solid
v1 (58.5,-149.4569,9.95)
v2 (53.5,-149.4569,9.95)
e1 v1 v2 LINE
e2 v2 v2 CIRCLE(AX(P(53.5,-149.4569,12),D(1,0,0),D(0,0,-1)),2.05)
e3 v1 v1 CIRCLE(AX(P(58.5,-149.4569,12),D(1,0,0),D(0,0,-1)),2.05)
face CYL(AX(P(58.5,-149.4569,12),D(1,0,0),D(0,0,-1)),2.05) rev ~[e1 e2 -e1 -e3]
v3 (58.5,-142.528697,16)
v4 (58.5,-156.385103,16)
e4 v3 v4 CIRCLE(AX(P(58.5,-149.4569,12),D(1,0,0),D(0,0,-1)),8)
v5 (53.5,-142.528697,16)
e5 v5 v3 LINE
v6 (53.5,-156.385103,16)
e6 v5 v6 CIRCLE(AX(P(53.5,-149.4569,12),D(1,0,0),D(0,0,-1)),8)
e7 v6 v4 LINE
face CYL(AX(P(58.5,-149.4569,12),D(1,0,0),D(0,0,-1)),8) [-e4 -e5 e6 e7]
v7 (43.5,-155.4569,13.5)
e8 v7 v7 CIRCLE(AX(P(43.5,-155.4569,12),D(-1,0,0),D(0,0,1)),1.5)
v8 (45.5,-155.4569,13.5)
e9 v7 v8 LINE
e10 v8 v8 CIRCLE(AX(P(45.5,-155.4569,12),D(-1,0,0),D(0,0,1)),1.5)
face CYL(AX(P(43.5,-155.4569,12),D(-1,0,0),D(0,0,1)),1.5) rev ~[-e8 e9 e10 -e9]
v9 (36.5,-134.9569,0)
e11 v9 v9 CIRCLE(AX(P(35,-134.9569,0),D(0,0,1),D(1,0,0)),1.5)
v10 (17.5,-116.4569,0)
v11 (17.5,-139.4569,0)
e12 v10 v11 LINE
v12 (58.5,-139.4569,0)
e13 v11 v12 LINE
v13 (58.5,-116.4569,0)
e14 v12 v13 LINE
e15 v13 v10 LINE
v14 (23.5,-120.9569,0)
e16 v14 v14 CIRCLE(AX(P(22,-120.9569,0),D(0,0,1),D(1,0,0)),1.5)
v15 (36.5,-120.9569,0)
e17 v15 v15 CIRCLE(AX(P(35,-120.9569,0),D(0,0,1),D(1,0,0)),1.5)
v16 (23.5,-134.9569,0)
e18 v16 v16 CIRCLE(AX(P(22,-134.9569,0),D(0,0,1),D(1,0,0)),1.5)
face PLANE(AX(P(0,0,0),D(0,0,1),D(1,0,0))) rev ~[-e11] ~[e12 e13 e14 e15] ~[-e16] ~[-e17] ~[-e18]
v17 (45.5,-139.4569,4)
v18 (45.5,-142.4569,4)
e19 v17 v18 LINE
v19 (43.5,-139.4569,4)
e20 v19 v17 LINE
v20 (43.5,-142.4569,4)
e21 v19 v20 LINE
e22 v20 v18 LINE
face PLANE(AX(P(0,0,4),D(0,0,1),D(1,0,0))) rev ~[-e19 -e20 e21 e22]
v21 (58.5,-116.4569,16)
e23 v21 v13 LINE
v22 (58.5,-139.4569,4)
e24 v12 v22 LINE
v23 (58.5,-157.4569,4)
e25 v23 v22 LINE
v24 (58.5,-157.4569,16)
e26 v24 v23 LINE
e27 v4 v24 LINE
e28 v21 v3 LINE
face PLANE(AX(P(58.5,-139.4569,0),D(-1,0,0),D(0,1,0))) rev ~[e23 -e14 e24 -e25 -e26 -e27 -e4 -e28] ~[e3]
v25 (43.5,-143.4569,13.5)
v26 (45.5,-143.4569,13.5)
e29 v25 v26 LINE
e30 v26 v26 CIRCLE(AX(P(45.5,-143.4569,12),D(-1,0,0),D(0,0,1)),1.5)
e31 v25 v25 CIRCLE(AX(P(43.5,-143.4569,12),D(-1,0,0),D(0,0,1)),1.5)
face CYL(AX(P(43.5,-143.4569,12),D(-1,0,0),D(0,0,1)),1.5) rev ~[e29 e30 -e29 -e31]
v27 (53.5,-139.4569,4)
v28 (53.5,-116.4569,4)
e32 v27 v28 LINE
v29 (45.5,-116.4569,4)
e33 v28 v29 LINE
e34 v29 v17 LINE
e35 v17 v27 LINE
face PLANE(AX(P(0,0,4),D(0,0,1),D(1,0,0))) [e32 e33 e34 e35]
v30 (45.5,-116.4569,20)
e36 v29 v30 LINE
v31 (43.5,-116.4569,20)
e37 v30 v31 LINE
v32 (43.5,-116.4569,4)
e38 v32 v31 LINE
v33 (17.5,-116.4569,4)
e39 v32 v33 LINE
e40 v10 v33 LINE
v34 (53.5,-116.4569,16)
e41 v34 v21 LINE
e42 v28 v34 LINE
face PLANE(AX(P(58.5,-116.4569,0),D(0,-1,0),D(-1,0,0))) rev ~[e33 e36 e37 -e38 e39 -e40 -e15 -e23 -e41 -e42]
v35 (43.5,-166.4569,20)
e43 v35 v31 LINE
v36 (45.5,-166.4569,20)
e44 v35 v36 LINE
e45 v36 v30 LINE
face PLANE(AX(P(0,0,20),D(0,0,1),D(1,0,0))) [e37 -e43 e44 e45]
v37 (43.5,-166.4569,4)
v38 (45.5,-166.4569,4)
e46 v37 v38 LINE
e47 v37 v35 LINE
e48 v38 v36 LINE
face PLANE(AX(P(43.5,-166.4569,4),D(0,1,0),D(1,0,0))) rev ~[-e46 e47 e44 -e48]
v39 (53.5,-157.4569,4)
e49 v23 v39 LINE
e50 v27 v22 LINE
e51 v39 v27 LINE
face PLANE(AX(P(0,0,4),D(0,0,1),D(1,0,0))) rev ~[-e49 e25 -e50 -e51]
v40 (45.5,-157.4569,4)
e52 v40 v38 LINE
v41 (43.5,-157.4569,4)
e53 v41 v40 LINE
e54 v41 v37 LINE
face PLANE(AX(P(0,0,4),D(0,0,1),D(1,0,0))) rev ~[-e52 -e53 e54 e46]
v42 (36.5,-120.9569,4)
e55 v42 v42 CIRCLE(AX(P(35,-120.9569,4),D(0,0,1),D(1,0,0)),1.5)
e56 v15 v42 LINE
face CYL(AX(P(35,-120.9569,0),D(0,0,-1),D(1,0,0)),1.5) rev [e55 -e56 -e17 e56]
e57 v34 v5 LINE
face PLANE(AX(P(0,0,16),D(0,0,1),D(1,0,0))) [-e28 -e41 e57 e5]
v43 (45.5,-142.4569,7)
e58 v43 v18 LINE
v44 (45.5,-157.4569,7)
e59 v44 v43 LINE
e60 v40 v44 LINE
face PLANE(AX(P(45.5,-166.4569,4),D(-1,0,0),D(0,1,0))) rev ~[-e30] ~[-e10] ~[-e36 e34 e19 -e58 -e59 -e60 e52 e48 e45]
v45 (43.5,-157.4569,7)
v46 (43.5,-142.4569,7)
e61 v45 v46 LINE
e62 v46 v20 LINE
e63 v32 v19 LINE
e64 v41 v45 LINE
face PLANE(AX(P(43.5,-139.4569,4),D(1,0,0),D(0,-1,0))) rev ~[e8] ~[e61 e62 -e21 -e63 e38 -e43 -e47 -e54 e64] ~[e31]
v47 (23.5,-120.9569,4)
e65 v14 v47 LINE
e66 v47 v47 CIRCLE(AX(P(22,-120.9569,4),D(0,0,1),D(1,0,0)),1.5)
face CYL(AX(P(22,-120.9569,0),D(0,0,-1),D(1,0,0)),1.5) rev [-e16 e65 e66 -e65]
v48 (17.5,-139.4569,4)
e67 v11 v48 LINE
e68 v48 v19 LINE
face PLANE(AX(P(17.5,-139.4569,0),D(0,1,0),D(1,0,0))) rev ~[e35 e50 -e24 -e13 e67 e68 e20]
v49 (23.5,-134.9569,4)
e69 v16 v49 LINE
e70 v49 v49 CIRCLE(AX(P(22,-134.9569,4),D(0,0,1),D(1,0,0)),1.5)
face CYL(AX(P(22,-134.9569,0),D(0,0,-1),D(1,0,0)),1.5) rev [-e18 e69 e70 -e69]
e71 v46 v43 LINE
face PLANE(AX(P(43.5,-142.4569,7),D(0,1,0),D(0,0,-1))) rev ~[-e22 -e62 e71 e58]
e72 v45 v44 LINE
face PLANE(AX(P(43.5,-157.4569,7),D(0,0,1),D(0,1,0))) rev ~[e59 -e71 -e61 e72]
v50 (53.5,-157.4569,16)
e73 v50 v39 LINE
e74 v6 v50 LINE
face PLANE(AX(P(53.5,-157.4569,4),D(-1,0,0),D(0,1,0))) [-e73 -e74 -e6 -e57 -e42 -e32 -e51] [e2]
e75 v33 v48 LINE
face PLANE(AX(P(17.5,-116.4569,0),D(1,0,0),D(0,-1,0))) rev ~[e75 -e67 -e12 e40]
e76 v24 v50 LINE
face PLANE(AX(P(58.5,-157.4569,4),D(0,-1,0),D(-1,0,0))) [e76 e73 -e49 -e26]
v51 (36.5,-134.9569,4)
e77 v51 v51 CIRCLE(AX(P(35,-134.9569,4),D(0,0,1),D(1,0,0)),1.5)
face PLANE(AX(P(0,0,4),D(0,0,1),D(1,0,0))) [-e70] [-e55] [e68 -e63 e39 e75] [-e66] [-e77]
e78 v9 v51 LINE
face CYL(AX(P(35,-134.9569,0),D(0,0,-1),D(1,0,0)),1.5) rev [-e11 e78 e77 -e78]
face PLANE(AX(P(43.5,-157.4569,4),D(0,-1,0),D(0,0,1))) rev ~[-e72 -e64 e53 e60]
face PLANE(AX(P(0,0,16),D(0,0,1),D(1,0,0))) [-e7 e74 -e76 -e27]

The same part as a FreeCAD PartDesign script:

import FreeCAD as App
import Part
import Sketcher

V = App.Vector

doc = App.newDocument("Part")
params = doc.addObject("Spreadsheet::Sheet", "Params")
for row, (alias, value) in enumerate([
    ("sketch1_diameter", "3 mm"),
    ("sketch1_width", "41 mm"),
    ("sketch1_height", "23 mm"),
    ("pad1_length", "4 mm"),
    ("sketch2_width", "5 mm"),
    ("sketch2_height", "41 mm"),
    ("pad2_length", "12 mm"),
    ("sketch3_diameter", "3.1 mm"),
    ("sketch4_width", "2 mm"),
    ("sketch4_height", "50 mm"),
    ("pad3_length", "16 mm"),
    ("sketch5_diameter", "4.1 mm"),
    ("pocket2_length", "5 mm"),
    ("sketch6_diameter", "4.1 mm"),
    ("sketch6_diameter2", "16 mm"),
    ("pad4_length", "5 mm"),
    ("sketch7_diameter", "3 mm"),
    ("sketch7_width", "15 mm"),
    ("sketch7_height", "3 mm"),
    ("pocket3_length", "10 mm"),
], start=1):
    params.set(f"A{row}", alias)
    params.set(f"B{row}", "=" + value)
    params.setAlias(f"B{row}", alias)

body = doc.addObject("PartDesign::Body", "Body")

# Sketch on XY plane
sketch1 = body.newObject("Sketcher::SketchObject", "Sketch")
sketch1.AttachmentSupport = (doc.getObject("XY_Plane"), [""])
sketch1.MapMode = "FlatFace"
sketch1.addGeometry([
    Part.LineSegment(V(17.5, -116.5, 0), V(17.5, -139.5, 0)),  # 0
    Part.LineSegment(V(17.5, -139.5, 0), V(58.5, -139.5, 0)),  # 1
    Part.LineSegment(V(58.5, -139.5, 0), V(58.5, -116.5, 0)),  # 2
    Part.LineSegment(V(58.5, -116.5, 0), V(17.5, -116.5, 0)),  # 3
    Part.Circle(V(22, -135, 0), V(0, 0, 1), 1.5),  # 4
    Part.Circle(V(22, -121, 0), V(0, 0, 1), 1.5),  # 5
    Part.Circle(V(35, -135, 0), V(0, 0, 1), 1.5),  # 6
    Part.Circle(V(35, -121, 0), V(0, 0, 1), 1.5),  # 7
], False)
sketch1.addConstraint([
    Sketcher.Constraint("Coincident", 0, 2, 1, 1),
    Sketcher.Constraint("Coincident", 1, 2, 2, 1),
    Sketcher.Constraint("Coincident", 2, 2, 3, 1),
    Sketcher.Constraint("Coincident", 3, 2, 0, 1),
    Sketcher.Constraint("Vertical", 0),
    Sketcher.Constraint("Horizontal", 1),
    Sketcher.Constraint("Vertical", 2),
    Sketcher.Constraint("Horizontal", 3),
    Sketcher.Constraint("Equal", 4, 5),
    Sketcher.Constraint("Equal", 5, 6),
    Sketcher.Constraint("Equal", 6, 7),
    Sketcher.Constraint("Horizontal", 4, 3, 6, 3),
    Sketcher.Constraint("Horizontal", 5, 3, 7, 3),
    Sketcher.Constraint("Vertical", 4, 3, 5, 3),
    Sketcher.Constraint("Vertical", 6, 3, 7, 3),
    Sketcher.Constraint("Diameter", 4, 3.0),
    Sketcher.Constraint("DistanceX", 1, 1, 1, 2, 41.0),
    Sketcher.Constraint("DistanceY", 0, 2, 0, 1, 23.0),
    Sketcher.Constraint("DistanceY", 4, 3, 5, 3, 14.0),
    Sketcher.Constraint("DistanceX", 4, 3, 6, 3, 13.0),
    Sketcher.Constraint("DistanceX", 0, 2, 4, 3, 4.5),
    Sketcher.Constraint("DistanceY", 0, 2, 4, 3, 4.5),
    Sketcher.Constraint("DistanceX", -1, 1, 4, 3, 22.0),
    Sketcher.Constraint("DistanceY", 4, 3, -1, 1, 134.957),
])
sketch1.setExpression("Constraints[15]", "Params.sketch1_diameter")
sketch1.setExpression("Constraints[16]", "Params.sketch1_width")
sketch1.setExpression("Constraints[17]", "Params.sketch1_height")
pad1 = body.newObject("PartDesign::Pad", "Pad")
pad1.Profile = sketch1
pad1.setExpression("Length", "Params.pad1_length")

# Sketch on XY plane
sketch2 = body.newObject("Sketcher::SketchObject", "Sketch001")
sketch2.AttachmentSupport = (doc.getObject("XY_Plane"), [""])
sketch2.MapMode = "FlatFace"
sketch2.AttachmentOffset = App.Placement(V(0, 0, 4), App.Rotation())
sketch2.addGeometry([
    Part.LineSegment(V(58, -157, 0), V(58, -116, 0)),
    Part.LineSegment(V(58, -116, 0), V(54, -116, 0)),
    Part.LineSegment(V(54, -116, 0), V(54, -157, 0)),
    Part.LineSegment(V(54, -157, 0), V(58, -157, 0)),
], False)
sketch2.addConstraint([
    Sketcher.Constraint("Coincident", 0, 2, 1, 1),
    Sketcher.Constraint("Coincident", 1, 2, 2, 1),
    Sketcher.Constraint("Coincident", 2, 2, 3, 1),
    Sketcher.Constraint("Coincident", 3, 2, 0, 1),
    Sketcher.Constraint("Vertical", 0),
    Sketcher.Constraint("Horizontal", 1),
    Sketcher.Constraint("Vertical", 2),
    Sketcher.Constraint("Horizontal", 3),
    Sketcher.Constraint("DistanceX", 1, 2, 1, 1, 5.0),
    Sketcher.Constraint("DistanceY", 0, 1, 0, 2, 41.0),
    Sketcher.Constraint("DistanceX", -1, 1, 0, 2, 58.5),
    Sketcher.Constraint("DistanceY", 0, 2, -1, 1, 116.457),
])
sketch2.setExpression("Constraints[8]", "Params.sketch2_width")
sketch2.setExpression("Constraints[9]", "Params.sketch2_height")
pad2 = body.newObject("PartDesign::Pad", "Pad001")
pad2.Profile = sketch2
pad2.setExpression("Length", "Params.pad2_length")

# Sketch on YZ plane
sketch3 = body.newObject("Sketcher::SketchObject", "Sketch002")
sketch3.AttachmentSupport = (doc.getObject("YZ_Plane"), [""])
sketch3.MapMode = "FlatFace"
sketch3.AttachmentOffset = App.Placement(V(0, 0, 53.5), App.Rotation())
sketch3.addGeometry(Part.Circle(V(-149.5, 12, 0), V(0, 0, 1), 1.6), False)
sketch3.addConstraint([
    Sketcher.Constraint("Diameter", 0, 3.1),
    Sketcher.Constraint("DistanceY", -1, 1, 0, 3, 12.0),
    Sketcher.Constraint("DistanceX", 0, 3, -1, 1, 149.457),
])
sketch3.setExpression("Constraints[0]", "Params.sketch3_diameter")
pocket1 = body.newObject("PartDesign::Pocket", "Pocket")
pocket1.Profile = sketch3
pocket1.Type = "ThroughAll"
pocket1.Reversed = True

# Sketch on XY plane
sketch4 = body.newObject("Sketcher::SketchObject", "Sketch003")
sketch4.AttachmentSupport = (doc.getObject("XY_Plane"), [""])
sketch4.MapMode = "FlatFace"
sketch4.AttachmentOffset = App.Placement(V(0, 0, 4), App.Rotation())
sketch4.addGeometry([
    Part.LineSegment(V(43.5, -166.5, 0), V(45.5, -166.5, 0)),
    Part.LineSegment(V(45.5, -166.5, 0), V(45.5, -116.5, 0)),
    Part.LineSegment(V(45.5, -116.5, 0), V(43.5, -116.5, 0)),
    Part.LineSegment(V(43.5, -116.5, 0), V(43.5, -166.5, 0)),
], False)
sketch4.addConstraint([
    Sketcher.Constraint("Coincident", 0, 2, 1, 1),
    Sketcher.Constraint("Coincident", 1, 2, 2, 1),
    Sketcher.Constraint("Coincident", 2, 2, 3, 1),
    Sketcher.Constraint("Coincident", 3, 2, 0, 1),
    Sketcher.Constraint("Horizontal", 0),
    Sketcher.Constraint("Vertical", 1),
    Sketcher.Constraint("Horizontal", 2),
    Sketcher.Constraint("Vertical", 3),
    Sketcher.Constraint("DistanceX", 0, 1, 0, 2, 2.0),
    Sketcher.Constraint("DistanceY", 1, 1, 1, 2, 50.0),
    Sketcher.Constraint("DistanceX", -1, 1, 0, 2, 45.5),
    Sketcher.Constraint("DistanceY", 0, 2, -1, 1, 166.457),
])
sketch4.setExpression("Constraints[8]", "Params.sketch4_width")
sketch4.setExpression("Constraints[9]", "Params.sketch4_height")
pad3 = body.newObject("PartDesign::Pad", "Pad002")
pad3.Profile = sketch4
pad3.setExpression("Length", "Params.pad3_length")

# Sketch on YZ plane
sketch5 = body.newObject("Sketcher::SketchObject", "Sketch004")
sketch5.AttachmentSupport = (doc.getObject("YZ_Plane"), [""])
sketch5.MapMode = "FlatFace"
sketch5.AttachmentOffset = App.Placement(V(0, 0, 58.5), App.Rotation())
sketch5.addGeometry(Part.Circle(V(-149.5, 12, 0), V(0, 0, 1), 2), False)
sketch5.addConstraint([
    Sketcher.Constraint("Diameter", 0, 4.1),
    Sketcher.Constraint("DistanceY", -1, 1, 0, 3, 12.0),
    Sketcher.Constraint("DistanceX", 0, 3, -1, 1, 149.457),
])
sketch5.setExpression("Constraints[0]", "Params.sketch5_diameter")
pocket2 = body.newObject("PartDesign::Pocket", "Pocket001")
pocket2.Profile = sketch5
pocket2.setExpression("Length", "Params.pocket2_length")

# Sketch on YZ plane
sketch6 = body.newObject("Sketcher::SketchObject", "Sketch005")
sketch6.AttachmentSupport = (doc.getObject("YZ_Plane"), [""])
sketch6.MapMode = "FlatFace"
sketch6.AttachmentOffset = App.Placement(V(0, 0, 58.5), App.Rotation())
sketch6.addGeometry([
    Part.Circle(V(-149.5, 12, 0), V(0, 0, 1), 8),
    Part.Circle(V(-149.5, 12, 0), V(0, 0, 1), 2),
], False)
sketch6.addConstraint([
    Sketcher.Constraint("Coincident", 1, 3, 0, 3),
    Sketcher.Constraint("Diameter", 1, 4.1),
    Sketcher.Constraint("Diameter", 0, 16.0),
    Sketcher.Constraint("DistanceY", -1, 1, 0, 3, 12.0),
    Sketcher.Constraint("DistanceX", 0, 3, -1, 1, 149.457),
])
sketch6.setExpression("Constraints[1]", "Params.sketch6_diameter")
sketch6.setExpression("Constraints[2]", "Params.sketch6_diameter2")
pad4 = body.newObject("PartDesign::Pad", "Pad003")
pad4.Profile = sketch6
pad4.setExpression("Length", "Params.pad4_length")
pad4.Reversed = True

# Sketch on YZ plane
sketch7 = body.newObject("Sketcher::SketchObject", "Sketch006")
sketch7.AttachmentSupport = (doc.getObject("YZ_Plane"), [""])
sketch7.MapMode = "FlatFace"
sketch7.AttachmentOffset = App.Placement(V(0, 0, 43.5), App.Rotation())
sketch7.addGeometry([
    Part.LineSegment(V(-142.5, 7, 0), V(-142.5, 4, 0)),  # 0
    Part.LineSegment(V(-142.5, 4, 0), V(-157.5, 4, 0)),  # 1
    Part.LineSegment(V(-157.5, 4, 0), V(-157.5, 7, 0)),  # 2
    Part.LineSegment(V(-157.5, 7, 0), V(-142.5, 7, 0)),  # 3
    Part.Circle(V(-155.5, 12, 0), V(0, 0, 1), 1.5),  # 4
    Part.Circle(V(-143.5, 12, 0), V(0, 0, 1), 1.5),  # 5
], False)
sketch7.addConstraint([
    Sketcher.Constraint("Coincident", 0, 2, 1, 1),
    Sketcher.Constraint("Coincident", 1, 2, 2, 1),
    Sketcher.Constraint("Coincident", 2, 2, 3, 1),
    Sketcher.Constraint("Coincident", 3, 2, 0, 1),
    Sketcher.Constraint("Vertical", 0),
    Sketcher.Constraint("Horizontal", 1),
    Sketcher.Constraint("Vertical", 2),
    Sketcher.Constraint("Horizontal", 3),
    Sketcher.Constraint("Equal", 4, 5),
    Sketcher.Constraint("Horizontal", 4, 3, 5, 3),
    Sketcher.Constraint("Diameter", 4, 3.0),
    Sketcher.Constraint("DistanceX", 1, 2, 1, 1, 15.0),
    Sketcher.Constraint("DistanceY", 0, 2, 0, 1, 3.0),
    Sketcher.Constraint("DistanceY", 2, 2, 4, 3, 5.0),
    Sketcher.Constraint("DistanceY", -1, 1, 4, 3, 12.0),
    Sketcher.Constraint("DistanceX", 4, 3, 5, 3, 12.0),
    Sketcher.Constraint("DistanceX", 5, 3, 0, 2, 1.0),
    Sketcher.Constraint("DistanceX", 4, 3, -1, 1, 155.457),
])
sketch7.setExpression("Constraints[10]", "Params.sketch7_diameter")
sketch7.setExpression("Constraints[11]", "Params.sketch7_width")
sketch7.setExpression("Constraints[12]", "Params.sketch7_height")
pocket3 = body.newObject("PartDesign::Pocket", "Pocket002")
pocket3.Profile = sketch7
pocket3.setExpression("Length", "Params.pocket3_length")
pocket3.Reversed = True

doc.recompute()
